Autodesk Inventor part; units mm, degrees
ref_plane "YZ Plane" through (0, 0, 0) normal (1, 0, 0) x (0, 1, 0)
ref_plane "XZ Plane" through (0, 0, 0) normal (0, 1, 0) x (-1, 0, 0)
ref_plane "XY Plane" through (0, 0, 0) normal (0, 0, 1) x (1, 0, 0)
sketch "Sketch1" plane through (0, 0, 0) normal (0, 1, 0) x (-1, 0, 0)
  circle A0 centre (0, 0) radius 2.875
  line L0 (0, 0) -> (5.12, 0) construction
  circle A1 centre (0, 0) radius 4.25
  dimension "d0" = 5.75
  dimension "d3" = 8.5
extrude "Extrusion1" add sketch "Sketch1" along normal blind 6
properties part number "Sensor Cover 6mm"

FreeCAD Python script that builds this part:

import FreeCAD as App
import Part
import Sketcher
from FreeCAD import Vector
Q = App.Units.Quantity

doc = App.newDocument("Part")
body = doc.addObject("PartDesign::Body", "Body")

sketch1 = body.newObject("Sketcher::SketchObject", "Sketch")
sketch1.AttachmentSupport = (doc.getObject("XZ_Plane"), [""])
sketch1.MapMode = "FlatFace"
sketch1.addGeometry([
    Part.Circle(Vector(0, 0, 0), Vector(0, 0, 1), 4.25),
    Part.Circle(Vector(0, 0, 0), Vector(0, 0, 1), 2.875),
], False)
sketch1.addConstraint([
    Sketcher.Constraint("Coincident", 0, 3, -1, 1),
    Sketcher.Constraint("Coincident", 1, 3, -1, 1),
    Sketcher.Constraint("Diameter", 0, Q("8.5 mm")),
    Sketcher.Constraint("Diameter", 1, Q("5.75 mm")),
])
pad1 = body.newObject("PartDesign::Pad", "Pad")
pad1.Profile = sketch1
pad1.Length = 6
pad1.Reversed = True

doc.recompute()
